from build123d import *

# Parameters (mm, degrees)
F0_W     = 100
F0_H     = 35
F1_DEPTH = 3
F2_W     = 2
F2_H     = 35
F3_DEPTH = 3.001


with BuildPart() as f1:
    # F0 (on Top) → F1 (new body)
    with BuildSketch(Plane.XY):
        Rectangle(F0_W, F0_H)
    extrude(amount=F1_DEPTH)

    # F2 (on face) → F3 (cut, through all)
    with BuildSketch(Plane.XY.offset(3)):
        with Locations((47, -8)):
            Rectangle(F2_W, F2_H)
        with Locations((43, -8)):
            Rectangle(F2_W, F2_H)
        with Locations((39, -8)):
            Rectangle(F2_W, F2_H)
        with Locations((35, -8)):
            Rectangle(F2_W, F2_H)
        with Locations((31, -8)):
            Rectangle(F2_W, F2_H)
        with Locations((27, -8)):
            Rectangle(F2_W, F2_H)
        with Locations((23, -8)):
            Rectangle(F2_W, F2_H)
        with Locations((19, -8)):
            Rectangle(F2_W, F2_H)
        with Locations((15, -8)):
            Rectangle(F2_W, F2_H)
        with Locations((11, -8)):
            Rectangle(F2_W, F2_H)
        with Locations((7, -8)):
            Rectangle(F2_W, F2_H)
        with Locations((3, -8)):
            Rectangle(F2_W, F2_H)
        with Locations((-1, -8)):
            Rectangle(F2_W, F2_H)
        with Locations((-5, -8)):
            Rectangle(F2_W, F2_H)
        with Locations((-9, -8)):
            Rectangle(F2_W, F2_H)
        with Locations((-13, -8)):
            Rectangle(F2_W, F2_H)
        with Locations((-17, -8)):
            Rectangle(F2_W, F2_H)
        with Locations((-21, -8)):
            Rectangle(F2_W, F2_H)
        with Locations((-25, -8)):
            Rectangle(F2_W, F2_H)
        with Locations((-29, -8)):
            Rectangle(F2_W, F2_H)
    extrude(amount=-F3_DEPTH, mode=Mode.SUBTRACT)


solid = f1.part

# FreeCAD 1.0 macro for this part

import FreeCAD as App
import Part
import Sketcher

V = App.Vector


def add_polygon(sketch, points):
    """Adds a closed chain of lines whose ends are joined by coincident constraints."""
    first, n = sketch.GeometryCount, len(points)
    for a, b in zip(points, points[1:] + points[:1]):
        sketch.addGeometry(Part.LineSegment(App.Vector(*a, 0), App.Vector(*b, 0)), False)
    for i in range(n):
        sketch.addConstraint(Sketcher.Constraint("Coincident", first + i, 2, first + (i + 1) % n, 1))

doc = App.newDocument("Part")
params = doc.addObject("Spreadsheet::Sheet", "Params")
for row, (alias, value) in enumerate([
    ("sketch1_width", "100 mm"),
    ("sketch1_height", "35 mm"),
    ("pad1_length", "3 mm"),
    ("sketch2_width", "2 mm"),
    ("sketch2_height", "35 mm"),
], start=1):
    params.set(f"A{row}", alias)
    params.set(f"B{row}", "=" + value)
    params.setAlias(f"B{row}", alias)

body = doc.addObject("PartDesign::Body", "Body")

# Sketch on XY plane
sketch1 = body.newObject("Sketcher::SketchObject", "Sketch")
sketch1.AttachmentSupport = (doc.getObject("XY_Plane"), [""])
sketch1.MapMode = "FlatFace"
add_polygon(sketch1, [(-50, 17.5), (-50, -17.5), (50, -17.5), (50, 17.5)])  # lines 0-3
sketch1.addConstraint(Sketcher.Constraint("Vertical", 0))
sketch1.addConstraint(Sketcher.Constraint("Horizontal", 1))
sketch1.addConstraint(Sketcher.Constraint("Vertical", 2))
sketch1.addConstraint(Sketcher.Constraint("Horizontal", 3))
sketch1.addConstraint(Sketcher.Constraint("Symmetric", 0, 2, 2, 2, -1, 1))
sketch1.addConstraint(Sketcher.Constraint("DistanceX", 1, 1, 1, 2, 100.0))
sketch1.addConstraint(Sketcher.Constraint("DistanceY", 0, 2, 0, 1, 35.0))
sketch1.setExpression("Constraints[9]", "Params.sketch1_width")
sketch1.setExpression("Constraints[10]", "Params.sketch1_height")
pad1 = body.newObject("PartDesign::Pad", "Pad")
pad1.Profile = sketch1
pad1.setExpression("Length", "Params.pad1_length")

# Sketch on XY plane
sketch2 = body.newObject("Sketcher::SketchObject", "Sketch001")
sketch2.AttachmentSupport = (doc.getObject("XY_Plane"), [""])
sketch2.MapMode = "FlatFace"
sketch2.AttachmentOffset = App.Placement(V(0, 0, 3), App.Rotation())
add_polygon(sketch2, [(46, 9.5), (46, -25.5), (48, -25.5), (48, 9.5)])  # lines 0-3
add_polygon(sketch2, [(42, 9.5), (42, -25.5), (44, -25.5), (44, 9.5)])  # lines 4-7
add_polygon(sketch2, [(38, 9.5), (38, -25.5), (40, -25.5), (40, 9.5)])  # lines 8-11
add_polygon(sketch2, [(34, 9.5), (34, -25.5), (36, -25.5), (36, 9.5)])  # lines 12-15
add_polygon(sketch2, [(30, 9.5), (30, -25.5), (32, -25.5), (32, 9.5)])  # lines 16-19
add_polygon(sketch2, [(26, 9.5), (26, -25.5), (28, -25.5), (28, 9.5)])  # lines 20-23
add_polygon(sketch2, [(22, 9.5), (22, -25.5), (24, -25.5), (24, 9.5)])  # lines 24-27
add_polygon(sketch2, [(18, 9.5), (18, -25.5), (20, -25.5), (20, 9.5)])  # lines 28-31
add_polygon(sketch2, [(14, 9.5), (14, -25.5), (16, -25.5), (16, 9.5)])  # lines 32-35
add_polygon(sketch2, [(10, 9.5), (10, -25.5), (12, -25.5), (12, 9.5)])  # lines 36-39
add_polygon(sketch2, [(6, 9.5), (6, -25.5), (8, -25.5), (8, 9.5)])  # lines 40-43
add_polygon(sketch2, [(2, 9.5), (2, -25.5), (4, -25.5), (4, 9.5)])  # lines 44-47
add_polygon(sketch2, [(-2, 9.5), (-2, -25.5), (0, -25.5), (0, 9.5)])  # lines 48-51
add_polygon(sketch2, [(-6, 9.5), (-6, -25.5), (-4, -25.5), (-4, 9.5)])  # lines 52-55
add_polygon(sketch2, [(-10, 9.5), (-10, -25.5), (-8, -25.5), (-8, 9.5)])  # lines 56-59
add_polygon(sketch2, [(-14, 9.5), (-14, -25.5), (-12, -25.5), (-12, 9.5)])  # lines 60-63
add_polygon(sketch2, [(-18, 9.5), (-18, -25.5), (-16, -25.5), (-16, 9.5)])  # lines 64-67
add_polygon(sketch2, [(-22, 9.5), (-22, -25.5), (-20, -25.5), (-20, 9.5)])  # lines 68-71
add_polygon(sketch2, [(-26, 9.5), (-26, -25.5), (-24, -25.5), (-24, 9.5)])  # lines 72-75
add_polygon(sketch2, [(-30, 9.5), (-30, -25.5), (-28, -25.5), (-28, 9.5)])  # lines 76-79
sketch2.addConstraint(Sketcher.Constraint("Vertical", 0))
sketch2.addConstraint(Sketcher.Constraint("Horizontal", 1))
sketch2.addConstraint(Sketcher.Constraint("Vertical", 2))
sketch2.addConstraint(Sketcher.Constraint("Horizontal", 3))
sketch2.addConstraint(Sketcher.Constraint("Vertical", 4))
sketch2.addConstraint(Sketcher.Constraint("Horizontal", 5))
sketch2.addConstraint(Sketcher.Constraint("Vertical", 6))
sketch2.addConstraint(Sketcher.Constraint("Horizontal", 7))
sketch2.addConstraint(Sketcher.Constraint("Vertical", 8))
sketch2.addConstraint(Sketcher.Constraint("Horizontal", 9))
sketch2.addConstraint(Sketcher.Constraint("Vertical", 10))
sketch2.addConstraint(Sketcher.Constraint("Horizontal", 11))
sketch2.addConstraint(Sketcher.Constraint("Vertical", 12))
sketch2.addConstraint(Sketcher.Constraint("Horizontal", 13))
sketch2.addConstraint(Sketcher.Constraint("Vertical", 14))
sketch2.addConstraint(Sketcher.Constraint("Horizontal", 15))
sketch2.addConstraint(Sketcher.Constraint("Vertical", 16))
sketch2.addConstraint(Sketcher.Constraint("Horizontal", 17))
sketch2.addConstraint(Sketcher.Constraint("Vertical", 18))
sketch2.addConstraint(Sketcher.Constraint("Horizontal", 19))
sketch2.addConstraint(Sketcher.Constraint("Vertical", 20))
sketch2.addConstraint(Sketcher.Constraint("Horizontal", 21))
sketch2.addConstraint(Sketcher.Constraint("Vertical", 22))
sketch2.addConstraint(Sketcher.Constraint("Horizontal", 23))
sketch2.addConstraint(Sketcher.Constraint("Vertical", 24))
sketch2.addConstraint(Sketcher.Constraint("Horizontal", 25))
sketch2.addConstraint(Sketcher.Constraint("Vertical", 26))
sketch2.addConstraint(Sketcher.Constraint("Horizontal", 27))
sketch2.addConstraint(Sketcher.Constraint("Vertical", 28))
sketch2.addConstraint(Sketcher.Constraint("Horizontal", 29))
sketch2.addConstraint(Sketcher.Constraint("Vertical", 30))
sketch2.addConstraint(Sketcher.Constraint("Horizontal", 31))
sketch2.addConstraint(Sketcher.Constraint("Vertical", 32))
sketch2.addConstraint(Sketcher.Constraint("Horizontal", 33))
sketch2.addConstraint(Sketcher.Constraint("Vertical", 34))
sketch2.addConstraint(Sketcher.Constraint("Horizontal", 35))
sketch2.addConstraint(Sketcher.Constraint("Vertical", 36))
sketch2.addConstraint(Sketcher.Constraint("Horizontal", 37))
sketch2.addConstraint(Sketcher.Constraint("Vertical", 38))
sketch2.addConstraint(Sketcher.Constraint("Horizontal", 39))
sketch2.addConstraint(Sketcher.Constraint("Vertical", 40))
sketch2.addConstraint(Sketcher.Constraint("Horizontal", 41))
sketch2.addConstraint(Sketcher.Constraint("Vertical", 42))
sketch2.addConstraint(Sketcher.Constraint("Horizontal", 43))
sketch2.addConstraint(Sketcher.Constraint("Vertical", 44))
sketch2.addConstraint(Sketcher.Constraint("Horizontal", 45))
sketch2.addConstraint(Sketcher.Constraint("Vertical", 46))
sketch2.addConstraint(Sketcher.Constraint("Horizontal", 47))
sketch2.addConstraint(Sketcher.Constraint("Vertical", 48))
sketch2.addConstraint(Sketcher.Constraint("Horizontal", 49))
sketch2.addConstraint(Sketcher.Constraint("Vertical", 50))
sketch2.addConstraint(Sketcher.Constraint("Horizontal", 51))
sketch2.addConstraint(Sketcher.Constraint("Vertical", 52))
sketch2.addConstraint(Sketcher.Constraint("Horizontal", 53))
sketch2.addConstraint(Sketcher.Constraint("Vertical", 54))
sketch2.addConstraint(Sketcher.Constraint("Horizontal", 55))
sketch2.addConstraint(Sketcher.Constraint("Vertical", 56))
sketch2.addConstraint(Sketcher.Constraint("Horizontal", 57))
sketch2.addConstraint(Sketcher.Constraint("Vertical", 58))
sketch2.addConstraint(Sketcher.Constraint("Horizontal", 59))
sketch2.addConstraint(Sketcher.Constraint("Vertical", 60))
sketch2.addConstraint(Sketcher.Constraint("Horizontal", 61))
sketch2.addConstraint(Sketcher.Constraint("Vertical", 62))
sketch2.addConstraint(Sketcher.Constraint("Horizontal", 63))
sketch2.addConstraint(Sketcher.Constraint("Vertical", 64))
sketch2.addConstraint(Sketcher.Constraint("Horizontal", 65))
sketch2.addConstraint(Sketcher.Constraint("Vertical", 66))
sketch2.addConstraint(Sketcher.Constraint("Horizontal", 67))
sketch2.addConstraint(Sketcher.Constraint("Vertical", 68))
sketch2.addConstraint(Sketcher.Constraint("Horizontal", 69))
sketch2.addConstraint(Sketcher.Constraint("Vertical", 70))
sketch2.addConstraint(Sketcher.Constraint("Horizontal", 71))
sketch2.addConstraint(Sketcher.Constraint("Vertical", 72))
sketch2.addConstraint(Sketcher.Constraint("Horizontal", 73))
sketch2.addConstraint(Sketcher.Constraint("Vertical", 74))
sketch2.addConstraint(Sketcher.Constraint("Horizontal", 75))
sketch2.addConstraint(Sketcher.Constraint("Vertical", 76))
sketch2.addConstraint(Sketcher.Constraint("Horizontal", 77))
sketch2.addConstraint(Sketcher.Constraint("Vertical", 78))
sketch2.addConstraint(Sketcher.Constraint("Horizontal", 79))
sketch2.addConstraint(Sketcher.Constraint("Symmetric", 44, 2, 48, 2, -2))
sketch2.addConstraint(Sketcher.Constraint("Symmetric", 40, 2, 52, 2, -2))
sketch2.addConstraint(Sketcher.Constraint("Symmetric", 45, 2, 53, 2, -2))
sketch2.addConstraint(Sketcher.Constraint("Symmetric", 36, 2, 56, 2, -2))
sketch2.addConstraint(Sketcher.Constraint("Symmetric", 41, 2, 57, 2, -2))
sketch2.addConstraint(Sketcher.Constraint("Symmetric", 32, 2, 60, 2, -2))
sketch2.addConstraint(Sketcher.Constraint("Symmetric", 37, 2, 61, 2, -2))
sketch2.addConstraint(Sketcher.Constraint("Symmetric", 28, 2, 64, 2, -2))
sketch2.addConstraint(Sketcher.Constraint("Symmetric", 33, 2, 65, 2, -2))
sketch2.addConstraint(Sketcher.Constraint("Symmetric", 24, 2, 68, 2, -2))
sketch2.addConstraint(Sketcher.Constraint("Symmetric", 29, 2, 69, 2, -2))
sketch2.addConstraint(Sketcher.Constraint("Symmetric", 20, 2, 72, 2, -2))
sketch2.addConstraint(Sketcher.Constraint("Symmetric", 25, 2, 73, 2, -2))
sketch2.addConstraint(Sketcher.Constraint("Symmetric", 16, 2, 76, 2, -2))
sketch2.addConstraint(Sketcher.Constraint("Symmetric", 21, 2, 77, 2, -2))
sketch2.addConstraint(Sketcher.Constraint("PointOnObject", 49, 2, -2))
sketch2.addConstraint(Sketcher.Constraint("Horizontal", 1, 2, 4, 2))
sketch2.addConstraint(Sketcher.Constraint("Horizontal", 3, 2, 6, 2))
sketch2.addConstraint(Sketcher.Constraint("Horizontal", 5, 2, 8, 2))
sketch2.addConstraint(Sketcher.Constraint("Horizontal", 7, 2, 10, 2))
sketch2.addConstraint(Sketcher.Constraint("Horizontal", 9, 2, 12, 2))
sketch2.addConstraint(Sketcher.Constraint("Horizontal", 11, 2, 14, 2))
sketch2.addConstraint(Sketcher.Constraint("Horizontal", 13, 2, 16, 2))
sketch2.addConstraint(Sketcher.Constraint("Horizontal", 15, 2, 18, 2))
sketch2.addConstraint(Sketcher.Constraint("Horizontal", 19, 2, 22, 2))
sketch2.addConstraint(Sketcher.Constraint("Horizontal", 23, 2, 26, 2))
sketch2.addConstraint(Sketcher.Constraint("Horizontal", 27, 2, 30, 2))
sketch2.addConstraint(Sketcher.Constraint("Horizontal", 31, 2, 34, 2))
sketch2.addConstraint(Sketcher.Constraint("Horizontal", 35, 2, 38, 2))
sketch2.addConstraint(Sketcher.Constraint("Horizontal", 39, 2, 42, 2))
sketch2.addConstraint(Sketcher.Constraint("Horizontal", 43, 2, 46, 2))
sketch2.addConstraint(Sketcher.Constraint("Horizontal", 47, 2, 50, 2))
sketch2.addConstraint(Sketcher.Constraint("Horizontal", 51, 2, 54, 2))
sketch2.addConstraint(Sketcher.Constraint("Horizontal", 55, 2, 58, 2))
sketch2.addConstraint(Sketcher.Constraint("Horizontal", 59, 2, 62, 2))
sketch2.addConstraint(Sketcher.Constraint("Horizontal", 63, 2, 66, 2))
sketch2.addConstraint(Sketcher.Constraint("Horizontal", 67, 2, 70, 2))
sketch2.addConstraint(Sketcher.Constraint("Horizontal", 71, 2, 74, 2))
sketch2.addConstraint(Sketcher.Constraint("Horizontal", 75, 2, 78, 2))
sketch2.addConstraint(Sketcher.Constraint("Equal", 3, 5))
sketch2.addConstraint(Sketcher.Constraint("Equal", 7, 9))
sketch2.addConstraint(Sketcher.Constraint("Equal", 11, 13))
sketch2.addConstraint(Sketcher.Constraint("Equal", 15, 17))
sketch2.addConstraint(Sketcher.Constraint("Equal", 19, 21))
sketch2.addConstraint(Sketcher.Constraint("Equal", 23, 25))
sketch2.addConstraint(Sketcher.Constraint("Equal", 27, 29))
sketch2.addConstraint(Sketcher.Constraint("Equal", 31, 33))
sketch2.addConstraint(Sketcher.Constraint("Equal", 35, 37))
sketch2.addConstraint(Sketcher.Constraint("Equal", 39, 41))
sketch2.addConstraint(Sketcher.Constraint("Equal", 43, 45))
sketch2.addConstraint(Sketcher.Constraint("Equal", 47, 49))
sketch2.addConstraint(Sketcher.Constraint("Equal", 51, 53))
sketch2.addConstraint(Sketcher.Constraint("Equal", 55, 57))
sketch2.addConstraint(Sketcher.Constraint("Equal", 59, 61))
sketch2.addConstraint(Sketcher.Constraint("Equal", 63, 65))
sketch2.addConstraint(Sketcher.Constraint("Equal", 67, 69))
sketch2.addConstraint(Sketcher.Constraint("Equal", 71, 73))
sketch2.addConstraint(Sketcher.Constraint("Equal", 75, 77))
sketch2.addConstraint(Sketcher.Constraint("DistanceX", 1, 1, 1, 2, 2.0))
sketch2.addConstraint(Sketcher.Constraint("DistanceY", 0, 2, 0, 1, 35.0))
sketch2.addConstraint(Sketcher.Constraint("DistanceX", -1, 1, 0, 2, 46.0))
sketch2.addConstraint(Sketcher.Constraint("DistanceX", -1, 1, 4, 2, 42.0))
sketch2.addConstraint(Sketcher.Constraint("DistanceX", -1, 1, 8, 2, 38.0))
sketch2.addConstraint(Sketcher.Constraint("DistanceX", -1, 1, 12, 2, 34.0))
sketch2.addConstraint(Sketcher.Constraint("DistanceY", 0, 2, -1, 1, 25.5))
sketch2.setExpression("Constraints[218]", "Params.sketch2_width")
sketch2.setExpression("Constraints[219]", "Params.sketch2_height")
pocket1 = body.newObject("PartDesign::Pocket", "Pocket")
pocket1.Profile = sketch2
pocket1.Type = "ThroughAll"

doc.recompute()
